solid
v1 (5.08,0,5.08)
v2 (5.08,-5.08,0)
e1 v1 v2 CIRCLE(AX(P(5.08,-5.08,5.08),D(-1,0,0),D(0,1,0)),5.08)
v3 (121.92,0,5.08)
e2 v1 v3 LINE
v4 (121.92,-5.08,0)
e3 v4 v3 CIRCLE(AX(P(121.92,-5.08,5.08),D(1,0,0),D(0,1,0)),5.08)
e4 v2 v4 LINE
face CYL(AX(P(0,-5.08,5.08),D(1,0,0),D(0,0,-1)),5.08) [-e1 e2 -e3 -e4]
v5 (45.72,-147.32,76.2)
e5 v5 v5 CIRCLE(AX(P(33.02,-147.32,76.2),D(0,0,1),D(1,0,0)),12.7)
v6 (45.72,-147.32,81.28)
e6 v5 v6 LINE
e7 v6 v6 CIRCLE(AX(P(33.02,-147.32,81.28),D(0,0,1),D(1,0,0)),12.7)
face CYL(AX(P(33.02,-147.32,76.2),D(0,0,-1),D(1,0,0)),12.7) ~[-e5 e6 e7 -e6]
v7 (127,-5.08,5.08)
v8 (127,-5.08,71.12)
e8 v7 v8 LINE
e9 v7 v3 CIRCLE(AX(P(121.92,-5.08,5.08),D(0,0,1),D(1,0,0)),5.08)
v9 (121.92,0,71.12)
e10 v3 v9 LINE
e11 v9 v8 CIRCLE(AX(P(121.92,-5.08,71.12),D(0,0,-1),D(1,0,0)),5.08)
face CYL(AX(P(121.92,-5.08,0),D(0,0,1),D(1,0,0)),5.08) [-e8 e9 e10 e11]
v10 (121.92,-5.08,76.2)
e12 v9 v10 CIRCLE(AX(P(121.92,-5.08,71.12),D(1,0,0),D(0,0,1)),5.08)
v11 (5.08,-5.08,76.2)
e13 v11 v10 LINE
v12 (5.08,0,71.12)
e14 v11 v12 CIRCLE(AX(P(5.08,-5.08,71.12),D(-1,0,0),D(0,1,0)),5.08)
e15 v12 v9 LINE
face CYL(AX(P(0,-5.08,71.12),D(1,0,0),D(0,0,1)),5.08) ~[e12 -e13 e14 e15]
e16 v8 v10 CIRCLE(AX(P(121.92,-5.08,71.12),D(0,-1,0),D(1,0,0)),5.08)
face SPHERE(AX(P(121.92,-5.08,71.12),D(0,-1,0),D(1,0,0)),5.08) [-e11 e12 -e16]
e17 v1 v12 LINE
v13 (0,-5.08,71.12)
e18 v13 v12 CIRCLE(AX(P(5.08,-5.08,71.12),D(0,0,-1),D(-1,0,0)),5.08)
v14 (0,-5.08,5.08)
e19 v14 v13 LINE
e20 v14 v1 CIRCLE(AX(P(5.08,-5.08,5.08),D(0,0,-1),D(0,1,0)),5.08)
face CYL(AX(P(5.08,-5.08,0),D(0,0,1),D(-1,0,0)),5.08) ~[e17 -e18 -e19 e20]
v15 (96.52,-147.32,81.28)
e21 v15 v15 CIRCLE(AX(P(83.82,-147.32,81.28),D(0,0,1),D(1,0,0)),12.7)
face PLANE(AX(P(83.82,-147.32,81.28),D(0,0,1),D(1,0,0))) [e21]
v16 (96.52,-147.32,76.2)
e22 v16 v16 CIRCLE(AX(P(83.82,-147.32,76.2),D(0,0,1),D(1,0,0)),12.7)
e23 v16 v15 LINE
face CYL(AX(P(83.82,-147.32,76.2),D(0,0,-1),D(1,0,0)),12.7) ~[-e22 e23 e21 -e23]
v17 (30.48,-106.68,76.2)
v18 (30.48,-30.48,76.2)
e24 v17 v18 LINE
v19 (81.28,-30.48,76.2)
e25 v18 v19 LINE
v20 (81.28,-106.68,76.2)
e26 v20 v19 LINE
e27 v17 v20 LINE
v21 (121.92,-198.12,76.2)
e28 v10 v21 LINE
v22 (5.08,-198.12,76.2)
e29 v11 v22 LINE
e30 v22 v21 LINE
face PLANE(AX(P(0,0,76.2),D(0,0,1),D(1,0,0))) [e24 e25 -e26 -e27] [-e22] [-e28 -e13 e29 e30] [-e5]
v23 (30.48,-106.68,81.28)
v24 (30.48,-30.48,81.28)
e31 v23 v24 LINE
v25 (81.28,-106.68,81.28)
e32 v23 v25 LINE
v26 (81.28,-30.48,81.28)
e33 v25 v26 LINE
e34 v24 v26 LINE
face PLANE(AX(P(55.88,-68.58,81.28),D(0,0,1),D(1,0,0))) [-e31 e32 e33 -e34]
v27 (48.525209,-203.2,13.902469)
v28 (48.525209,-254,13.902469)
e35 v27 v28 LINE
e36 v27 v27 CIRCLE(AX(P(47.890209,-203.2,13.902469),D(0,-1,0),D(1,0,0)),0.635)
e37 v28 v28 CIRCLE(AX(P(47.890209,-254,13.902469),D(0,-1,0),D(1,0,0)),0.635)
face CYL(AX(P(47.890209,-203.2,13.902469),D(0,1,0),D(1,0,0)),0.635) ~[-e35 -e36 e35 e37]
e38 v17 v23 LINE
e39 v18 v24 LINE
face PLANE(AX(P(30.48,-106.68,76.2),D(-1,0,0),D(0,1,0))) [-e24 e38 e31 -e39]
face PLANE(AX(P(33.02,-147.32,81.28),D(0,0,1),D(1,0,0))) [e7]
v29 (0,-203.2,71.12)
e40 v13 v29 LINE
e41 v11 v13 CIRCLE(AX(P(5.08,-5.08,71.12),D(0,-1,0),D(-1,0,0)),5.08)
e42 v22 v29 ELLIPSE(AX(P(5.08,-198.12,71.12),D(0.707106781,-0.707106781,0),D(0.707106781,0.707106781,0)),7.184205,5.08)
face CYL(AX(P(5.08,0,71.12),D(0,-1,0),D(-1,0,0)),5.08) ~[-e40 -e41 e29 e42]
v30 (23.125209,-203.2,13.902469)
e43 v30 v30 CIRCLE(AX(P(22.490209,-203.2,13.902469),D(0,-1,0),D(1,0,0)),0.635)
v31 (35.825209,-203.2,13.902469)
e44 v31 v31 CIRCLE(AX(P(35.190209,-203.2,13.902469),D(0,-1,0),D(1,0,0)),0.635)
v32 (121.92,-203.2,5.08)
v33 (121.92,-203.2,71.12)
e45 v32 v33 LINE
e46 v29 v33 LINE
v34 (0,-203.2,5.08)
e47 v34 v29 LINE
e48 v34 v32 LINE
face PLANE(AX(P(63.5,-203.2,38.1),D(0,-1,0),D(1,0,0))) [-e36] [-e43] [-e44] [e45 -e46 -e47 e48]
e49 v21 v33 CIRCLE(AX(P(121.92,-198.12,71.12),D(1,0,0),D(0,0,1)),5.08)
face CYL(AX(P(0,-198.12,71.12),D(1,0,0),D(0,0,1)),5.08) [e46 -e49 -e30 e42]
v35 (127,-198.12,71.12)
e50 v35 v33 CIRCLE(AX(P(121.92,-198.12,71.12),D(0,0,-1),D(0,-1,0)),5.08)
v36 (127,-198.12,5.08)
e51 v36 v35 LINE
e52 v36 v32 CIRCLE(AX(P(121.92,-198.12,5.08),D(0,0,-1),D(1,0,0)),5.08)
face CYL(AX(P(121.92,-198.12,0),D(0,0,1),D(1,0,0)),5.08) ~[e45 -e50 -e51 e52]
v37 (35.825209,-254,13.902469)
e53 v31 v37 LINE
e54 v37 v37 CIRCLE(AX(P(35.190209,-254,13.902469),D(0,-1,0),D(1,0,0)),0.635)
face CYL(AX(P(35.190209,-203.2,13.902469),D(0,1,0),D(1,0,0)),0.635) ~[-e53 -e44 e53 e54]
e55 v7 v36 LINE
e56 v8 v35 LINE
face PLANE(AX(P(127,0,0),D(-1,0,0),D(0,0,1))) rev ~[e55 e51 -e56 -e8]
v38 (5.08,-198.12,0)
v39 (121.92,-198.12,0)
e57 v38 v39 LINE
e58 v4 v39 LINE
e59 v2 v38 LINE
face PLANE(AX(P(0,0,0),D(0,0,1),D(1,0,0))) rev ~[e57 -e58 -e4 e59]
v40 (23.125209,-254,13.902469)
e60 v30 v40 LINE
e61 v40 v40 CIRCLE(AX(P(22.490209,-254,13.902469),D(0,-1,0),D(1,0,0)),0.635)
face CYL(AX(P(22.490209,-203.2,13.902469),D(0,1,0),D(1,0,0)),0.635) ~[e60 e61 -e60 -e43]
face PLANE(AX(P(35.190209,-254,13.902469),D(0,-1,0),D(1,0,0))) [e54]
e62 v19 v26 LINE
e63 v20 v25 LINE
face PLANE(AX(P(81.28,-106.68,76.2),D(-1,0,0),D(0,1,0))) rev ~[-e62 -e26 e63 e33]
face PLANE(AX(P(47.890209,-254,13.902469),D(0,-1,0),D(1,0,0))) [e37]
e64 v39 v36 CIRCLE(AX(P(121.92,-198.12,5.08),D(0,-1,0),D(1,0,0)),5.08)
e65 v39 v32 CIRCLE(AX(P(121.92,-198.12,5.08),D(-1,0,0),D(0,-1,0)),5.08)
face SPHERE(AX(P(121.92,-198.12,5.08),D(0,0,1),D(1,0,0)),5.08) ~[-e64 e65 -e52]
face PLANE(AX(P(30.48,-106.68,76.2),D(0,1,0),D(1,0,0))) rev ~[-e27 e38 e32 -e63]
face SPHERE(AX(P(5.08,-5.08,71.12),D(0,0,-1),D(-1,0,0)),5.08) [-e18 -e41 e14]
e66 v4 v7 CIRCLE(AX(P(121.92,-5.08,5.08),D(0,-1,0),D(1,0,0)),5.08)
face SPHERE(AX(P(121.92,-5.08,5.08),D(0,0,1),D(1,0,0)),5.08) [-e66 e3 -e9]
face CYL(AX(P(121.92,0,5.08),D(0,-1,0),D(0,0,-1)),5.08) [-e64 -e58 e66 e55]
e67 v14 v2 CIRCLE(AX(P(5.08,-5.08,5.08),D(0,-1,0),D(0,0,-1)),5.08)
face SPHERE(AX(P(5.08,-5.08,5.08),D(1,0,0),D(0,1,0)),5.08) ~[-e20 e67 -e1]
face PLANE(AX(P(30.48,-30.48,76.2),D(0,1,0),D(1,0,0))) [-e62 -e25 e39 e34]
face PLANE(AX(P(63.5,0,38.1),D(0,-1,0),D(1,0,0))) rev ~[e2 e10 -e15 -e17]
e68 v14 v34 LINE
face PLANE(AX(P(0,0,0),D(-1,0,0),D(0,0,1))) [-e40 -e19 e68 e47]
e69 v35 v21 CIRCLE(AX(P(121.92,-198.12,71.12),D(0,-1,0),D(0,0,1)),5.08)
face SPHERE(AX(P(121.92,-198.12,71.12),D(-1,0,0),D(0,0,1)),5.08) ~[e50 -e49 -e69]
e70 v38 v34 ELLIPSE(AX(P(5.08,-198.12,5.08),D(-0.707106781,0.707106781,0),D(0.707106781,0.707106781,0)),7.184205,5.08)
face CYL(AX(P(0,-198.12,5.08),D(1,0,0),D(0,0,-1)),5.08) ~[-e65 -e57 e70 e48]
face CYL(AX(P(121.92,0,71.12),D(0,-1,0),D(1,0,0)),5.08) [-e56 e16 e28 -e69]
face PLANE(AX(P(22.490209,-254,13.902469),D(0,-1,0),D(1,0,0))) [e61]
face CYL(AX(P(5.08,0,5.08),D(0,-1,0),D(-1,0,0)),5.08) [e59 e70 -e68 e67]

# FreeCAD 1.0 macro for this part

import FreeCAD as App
import Part
import Sketcher

V = App.Vector
Q = App.Units.Quantity


def edges_at(feature, points):
    """Names of the edges that pass closest to the given points."""
    edges = feature.Shape.Edges
    near = lambda p: min(range(len(edges)), key=lambda i: edges[i].distToShape(Part.Vertex(*p))[0])
    return sorted({f"Edge{near(p) + 1}" for p in points})

doc = App.newDocument("Part")
params = doc.addObject("Spreadsheet::Sheet", "Params")
for row, (alias, value) in enumerate([
    ("sketch1_width", "5 in"),
    ("sketch1_height", "3 in"),
    ("pad1_length", "8 in"),
    ("fillet_radius", "0.2 in"),
    ("sketch2_diameter", "0.05 in"),
    ("pad2_length", "2 in"),
    ("sketch3_diameter", "1 in"),
    ("sketch3_width", "2 in"),
    ("sketch3_height", "3 in"),
    ("pad3_length", "0.2 in"),
], start=1):
    params.set(f"A{row}", alias)
    params.set(f"B{row}", "=" + value)
    params.setAlias(f"B{row}", alias)

body = doc.addObject("PartDesign::Body", "Body")

# Sketch on XZ plane
sketch1 = doc.addObject("Sketcher::SketchObject", "Sketch")
body.addObject(sketch1)
sketch1.AttachmentSupport = (doc.XZ_Plane, [""])
sketch1.MapMode = "FlatFace"
sketch1.addGeometry([
    Part.LineSegment(V(0, 76.2, 0), V(0, 0, 0)),
    Part.LineSegment(V(0, 0, 0), V(127, 0, 0)),
    Part.LineSegment(V(127, 0, 0), V(127, 76.2, 0)),
    Part.LineSegment(V(127, 76.2, 0), V(0, 76.2, 0)),
], False)
sketch1.addConstraint([
    Sketcher.Constraint("Coincident", 0, 2, 1, 1),
    Sketcher.Constraint("Coincident", 1, 2, 2, 1),
    Sketcher.Constraint("Coincident", 2, 2, 3, 1),
    Sketcher.Constraint("Coincident", 3, 2, 0, 1),
    Sketcher.Constraint("Vertical", 0),
    Sketcher.Constraint("Horizontal", 1),
    Sketcher.Constraint("Vertical", 2),
    Sketcher.Constraint("Horizontal", 3),
    Sketcher.Constraint("Coincident", 0, 2, -1, 1),
    Sketcher.Constraint("DistanceX", 1, 1, 1, 2, Q("5 in")),
    Sketcher.Constraint("DistanceY", 0, 2, 0, 1, Q("3 in")),
])
sketch1.setExpression("Constraints[9]", "Params.sketch1_width")
sketch1.setExpression("Constraints[10]", "Params.sketch1_height")
pad1 = doc.addObject("PartDesign::Pad", "Pad")
body.addObject(pad1)
pad1.Profile = sketch1
pad1.setExpression("Length", "Params.pad1_length")
doc.recompute()

fillet = doc.addObject("PartDesign::Fillet", "Fillet")
body.addObject(fillet)
fillet.Base = (pad1, edges_at(pad1, [
    (63.5, -203.2, 76.2),
    (127, -101.6, 76.2),
    (127, -203.2, 38.1),
    (127, 0, 38.1),
    (127, -101.6, 0),
    (63.5, -203.2, 0),
    (63.5, 0, 0),
    (0, 0, 38.1),
    (0, -101.6, 0),
    (0, -101.6, 76.2),
    (63.5, 0, 76.2),
]))
fillet.setExpression("Radius", "Params.fillet_radius")

# Sketch on XZ plane
sketch2 = doc.addObject("Sketcher::SketchObject", "Sketch001")
body.addObject(sketch2)
sketch2.AttachmentSupport = (doc.XZ_Plane, [""])
sketch2.MapMode = "FlatFace"
sketch2.AttachmentOffset = App.Placement(V(0, 0, 8 * 25.4), App.Rotation())
sketch2.addGeometry([
    Part.Circle(V(22.490209, 13.902469, 0), V(0, 0, 1), 0.635),
    Part.Circle(V(35.190209, 13.902469, 0), V(0, 0, 1), 0.635),
    Part.Circle(V(47.890209, 13.902469, 0), V(0, 0, 1), 0.635),
], False)
sketch2.addConstraint([
    Sketcher.Constraint("Equal", 0, 1),
    Sketcher.Constraint("Equal", 1, 2),
    Sketcher.Constraint("Horizontal", 0, 3, 1, 3),
    Sketcher.Constraint("Horizontal", 1, 3, 2, 3),
    Sketcher.Constraint("Diameter", 0, Q("0.05 in")),
    Sketcher.Constraint("DistanceX", 0, 3, 2, 3, Q("1 in")),
    Sketcher.Constraint("DistanceX", 0, 3, 1, 3, Q("0.5 in")),
    Sketcher.Constraint("DistanceX", -1, 1, 0, 3, Q("22.490209 mm")),
    Sketcher.Constraint("DistanceY", -1, 1, 0, 3, Q("13.902469 mm")),
])
sketch2.setExpression("Constraints[4]", "Params.sketch2_diameter")
pad2 = doc.addObject("PartDesign::Pad", "Pad001")
body.addObject(pad2)
pad2.Profile = sketch2
pad2.setExpression("Length", "Params.pad2_length")

# Sketch on XY plane
sketch3 = doc.addObject("Sketcher::SketchObject", "Sketch002")
body.addObject(sketch3)
sketch3.AttachmentSupport = (doc.XY_Plane, [""])
sketch3.MapMode = "FlatFace"
sketch3.AttachmentOffset = App.Placement(V(0, 0, 3 * 25.4), App.Rotation())
sketch3.addGeometry([
    Part.LineSegment(V(30.48, -30.48, 0), V(30.48, -106.68, 0)),  # 0
    Part.LineSegment(V(30.48, -106.68, 0), V(81.28, -106.68, 0)),  # 1
    Part.LineSegment(V(81.28, -106.68, 0), V(81.28, -30.48, 0)),  # 2
    Part.LineSegment(V(81.28, -30.48, 0), V(30.48, -30.48, 0)),  # 3
    Part.Circle(V(33.02, -147.32, 0), V(0, 0, 1), 12.7),  # 4
    Part.Circle(V(83.82, -147.32, 0), V(0, 0, 1), 12.7),  # 5
], False)
sketch3.addConstraint([
    Sketcher.Constraint("Coincident", 0, 2, 1, 1),
    Sketcher.Constraint("Coincident", 1, 2, 2, 1),
    Sketcher.Constraint("Coincident", 2, 2, 3, 1),
    Sketcher.Constraint("Coincident", 3, 2, 0, 1),
    Sketcher.Constraint("Vertical", 0),
    Sketcher.Constraint("Horizontal", 1),
    Sketcher.Constraint("Vertical", 2),
    Sketcher.Constraint("Horizontal", 3),
    Sketcher.Constraint("Equal", 4, 5),
    Sketcher.Constraint("Horizontal", 4, 3, 5, 3),
    Sketcher.Constraint("Diameter", 4, Q("1 in")),
    Sketcher.Constraint("DistanceX", 1, 1, 1, 2, Q("2 in")),
    Sketcher.Constraint("DistanceY", 0, 2, 0, 1, Q("3 in")),
    Sketcher.Constraint("DistanceX", 4, 3, 5, 3, Q("2 in")),
    Sketcher.Constraint("DistanceX", -1, 1, 4, 3, Q("1.3 in")),
    Sketcher.Constraint("DistanceY", 4, 3, -1, 1, Q("5.8 in")),
    Sketcher.Constraint("DistanceX", -1, 1, 0, 2, Q("1.2 in")),
    Sketcher.Constraint("DistanceY", 0, 2, -1, 1, Q("4.2 in")),
])
sketch3.setExpression("Constraints[10]", "Params.sketch3_diameter")
sketch3.setExpression("Constraints[11]", "Params.sketch3_width")
sketch3.setExpression("Constraints[12]", "Params.sketch3_height")
pad3 = doc.addObject("PartDesign::Pad", "Pad002")
body.addObject(pad3)
pad3.Profile = sketch3
pad3.setExpression("Length", "Params.pad3_length")

doc.recompute()
